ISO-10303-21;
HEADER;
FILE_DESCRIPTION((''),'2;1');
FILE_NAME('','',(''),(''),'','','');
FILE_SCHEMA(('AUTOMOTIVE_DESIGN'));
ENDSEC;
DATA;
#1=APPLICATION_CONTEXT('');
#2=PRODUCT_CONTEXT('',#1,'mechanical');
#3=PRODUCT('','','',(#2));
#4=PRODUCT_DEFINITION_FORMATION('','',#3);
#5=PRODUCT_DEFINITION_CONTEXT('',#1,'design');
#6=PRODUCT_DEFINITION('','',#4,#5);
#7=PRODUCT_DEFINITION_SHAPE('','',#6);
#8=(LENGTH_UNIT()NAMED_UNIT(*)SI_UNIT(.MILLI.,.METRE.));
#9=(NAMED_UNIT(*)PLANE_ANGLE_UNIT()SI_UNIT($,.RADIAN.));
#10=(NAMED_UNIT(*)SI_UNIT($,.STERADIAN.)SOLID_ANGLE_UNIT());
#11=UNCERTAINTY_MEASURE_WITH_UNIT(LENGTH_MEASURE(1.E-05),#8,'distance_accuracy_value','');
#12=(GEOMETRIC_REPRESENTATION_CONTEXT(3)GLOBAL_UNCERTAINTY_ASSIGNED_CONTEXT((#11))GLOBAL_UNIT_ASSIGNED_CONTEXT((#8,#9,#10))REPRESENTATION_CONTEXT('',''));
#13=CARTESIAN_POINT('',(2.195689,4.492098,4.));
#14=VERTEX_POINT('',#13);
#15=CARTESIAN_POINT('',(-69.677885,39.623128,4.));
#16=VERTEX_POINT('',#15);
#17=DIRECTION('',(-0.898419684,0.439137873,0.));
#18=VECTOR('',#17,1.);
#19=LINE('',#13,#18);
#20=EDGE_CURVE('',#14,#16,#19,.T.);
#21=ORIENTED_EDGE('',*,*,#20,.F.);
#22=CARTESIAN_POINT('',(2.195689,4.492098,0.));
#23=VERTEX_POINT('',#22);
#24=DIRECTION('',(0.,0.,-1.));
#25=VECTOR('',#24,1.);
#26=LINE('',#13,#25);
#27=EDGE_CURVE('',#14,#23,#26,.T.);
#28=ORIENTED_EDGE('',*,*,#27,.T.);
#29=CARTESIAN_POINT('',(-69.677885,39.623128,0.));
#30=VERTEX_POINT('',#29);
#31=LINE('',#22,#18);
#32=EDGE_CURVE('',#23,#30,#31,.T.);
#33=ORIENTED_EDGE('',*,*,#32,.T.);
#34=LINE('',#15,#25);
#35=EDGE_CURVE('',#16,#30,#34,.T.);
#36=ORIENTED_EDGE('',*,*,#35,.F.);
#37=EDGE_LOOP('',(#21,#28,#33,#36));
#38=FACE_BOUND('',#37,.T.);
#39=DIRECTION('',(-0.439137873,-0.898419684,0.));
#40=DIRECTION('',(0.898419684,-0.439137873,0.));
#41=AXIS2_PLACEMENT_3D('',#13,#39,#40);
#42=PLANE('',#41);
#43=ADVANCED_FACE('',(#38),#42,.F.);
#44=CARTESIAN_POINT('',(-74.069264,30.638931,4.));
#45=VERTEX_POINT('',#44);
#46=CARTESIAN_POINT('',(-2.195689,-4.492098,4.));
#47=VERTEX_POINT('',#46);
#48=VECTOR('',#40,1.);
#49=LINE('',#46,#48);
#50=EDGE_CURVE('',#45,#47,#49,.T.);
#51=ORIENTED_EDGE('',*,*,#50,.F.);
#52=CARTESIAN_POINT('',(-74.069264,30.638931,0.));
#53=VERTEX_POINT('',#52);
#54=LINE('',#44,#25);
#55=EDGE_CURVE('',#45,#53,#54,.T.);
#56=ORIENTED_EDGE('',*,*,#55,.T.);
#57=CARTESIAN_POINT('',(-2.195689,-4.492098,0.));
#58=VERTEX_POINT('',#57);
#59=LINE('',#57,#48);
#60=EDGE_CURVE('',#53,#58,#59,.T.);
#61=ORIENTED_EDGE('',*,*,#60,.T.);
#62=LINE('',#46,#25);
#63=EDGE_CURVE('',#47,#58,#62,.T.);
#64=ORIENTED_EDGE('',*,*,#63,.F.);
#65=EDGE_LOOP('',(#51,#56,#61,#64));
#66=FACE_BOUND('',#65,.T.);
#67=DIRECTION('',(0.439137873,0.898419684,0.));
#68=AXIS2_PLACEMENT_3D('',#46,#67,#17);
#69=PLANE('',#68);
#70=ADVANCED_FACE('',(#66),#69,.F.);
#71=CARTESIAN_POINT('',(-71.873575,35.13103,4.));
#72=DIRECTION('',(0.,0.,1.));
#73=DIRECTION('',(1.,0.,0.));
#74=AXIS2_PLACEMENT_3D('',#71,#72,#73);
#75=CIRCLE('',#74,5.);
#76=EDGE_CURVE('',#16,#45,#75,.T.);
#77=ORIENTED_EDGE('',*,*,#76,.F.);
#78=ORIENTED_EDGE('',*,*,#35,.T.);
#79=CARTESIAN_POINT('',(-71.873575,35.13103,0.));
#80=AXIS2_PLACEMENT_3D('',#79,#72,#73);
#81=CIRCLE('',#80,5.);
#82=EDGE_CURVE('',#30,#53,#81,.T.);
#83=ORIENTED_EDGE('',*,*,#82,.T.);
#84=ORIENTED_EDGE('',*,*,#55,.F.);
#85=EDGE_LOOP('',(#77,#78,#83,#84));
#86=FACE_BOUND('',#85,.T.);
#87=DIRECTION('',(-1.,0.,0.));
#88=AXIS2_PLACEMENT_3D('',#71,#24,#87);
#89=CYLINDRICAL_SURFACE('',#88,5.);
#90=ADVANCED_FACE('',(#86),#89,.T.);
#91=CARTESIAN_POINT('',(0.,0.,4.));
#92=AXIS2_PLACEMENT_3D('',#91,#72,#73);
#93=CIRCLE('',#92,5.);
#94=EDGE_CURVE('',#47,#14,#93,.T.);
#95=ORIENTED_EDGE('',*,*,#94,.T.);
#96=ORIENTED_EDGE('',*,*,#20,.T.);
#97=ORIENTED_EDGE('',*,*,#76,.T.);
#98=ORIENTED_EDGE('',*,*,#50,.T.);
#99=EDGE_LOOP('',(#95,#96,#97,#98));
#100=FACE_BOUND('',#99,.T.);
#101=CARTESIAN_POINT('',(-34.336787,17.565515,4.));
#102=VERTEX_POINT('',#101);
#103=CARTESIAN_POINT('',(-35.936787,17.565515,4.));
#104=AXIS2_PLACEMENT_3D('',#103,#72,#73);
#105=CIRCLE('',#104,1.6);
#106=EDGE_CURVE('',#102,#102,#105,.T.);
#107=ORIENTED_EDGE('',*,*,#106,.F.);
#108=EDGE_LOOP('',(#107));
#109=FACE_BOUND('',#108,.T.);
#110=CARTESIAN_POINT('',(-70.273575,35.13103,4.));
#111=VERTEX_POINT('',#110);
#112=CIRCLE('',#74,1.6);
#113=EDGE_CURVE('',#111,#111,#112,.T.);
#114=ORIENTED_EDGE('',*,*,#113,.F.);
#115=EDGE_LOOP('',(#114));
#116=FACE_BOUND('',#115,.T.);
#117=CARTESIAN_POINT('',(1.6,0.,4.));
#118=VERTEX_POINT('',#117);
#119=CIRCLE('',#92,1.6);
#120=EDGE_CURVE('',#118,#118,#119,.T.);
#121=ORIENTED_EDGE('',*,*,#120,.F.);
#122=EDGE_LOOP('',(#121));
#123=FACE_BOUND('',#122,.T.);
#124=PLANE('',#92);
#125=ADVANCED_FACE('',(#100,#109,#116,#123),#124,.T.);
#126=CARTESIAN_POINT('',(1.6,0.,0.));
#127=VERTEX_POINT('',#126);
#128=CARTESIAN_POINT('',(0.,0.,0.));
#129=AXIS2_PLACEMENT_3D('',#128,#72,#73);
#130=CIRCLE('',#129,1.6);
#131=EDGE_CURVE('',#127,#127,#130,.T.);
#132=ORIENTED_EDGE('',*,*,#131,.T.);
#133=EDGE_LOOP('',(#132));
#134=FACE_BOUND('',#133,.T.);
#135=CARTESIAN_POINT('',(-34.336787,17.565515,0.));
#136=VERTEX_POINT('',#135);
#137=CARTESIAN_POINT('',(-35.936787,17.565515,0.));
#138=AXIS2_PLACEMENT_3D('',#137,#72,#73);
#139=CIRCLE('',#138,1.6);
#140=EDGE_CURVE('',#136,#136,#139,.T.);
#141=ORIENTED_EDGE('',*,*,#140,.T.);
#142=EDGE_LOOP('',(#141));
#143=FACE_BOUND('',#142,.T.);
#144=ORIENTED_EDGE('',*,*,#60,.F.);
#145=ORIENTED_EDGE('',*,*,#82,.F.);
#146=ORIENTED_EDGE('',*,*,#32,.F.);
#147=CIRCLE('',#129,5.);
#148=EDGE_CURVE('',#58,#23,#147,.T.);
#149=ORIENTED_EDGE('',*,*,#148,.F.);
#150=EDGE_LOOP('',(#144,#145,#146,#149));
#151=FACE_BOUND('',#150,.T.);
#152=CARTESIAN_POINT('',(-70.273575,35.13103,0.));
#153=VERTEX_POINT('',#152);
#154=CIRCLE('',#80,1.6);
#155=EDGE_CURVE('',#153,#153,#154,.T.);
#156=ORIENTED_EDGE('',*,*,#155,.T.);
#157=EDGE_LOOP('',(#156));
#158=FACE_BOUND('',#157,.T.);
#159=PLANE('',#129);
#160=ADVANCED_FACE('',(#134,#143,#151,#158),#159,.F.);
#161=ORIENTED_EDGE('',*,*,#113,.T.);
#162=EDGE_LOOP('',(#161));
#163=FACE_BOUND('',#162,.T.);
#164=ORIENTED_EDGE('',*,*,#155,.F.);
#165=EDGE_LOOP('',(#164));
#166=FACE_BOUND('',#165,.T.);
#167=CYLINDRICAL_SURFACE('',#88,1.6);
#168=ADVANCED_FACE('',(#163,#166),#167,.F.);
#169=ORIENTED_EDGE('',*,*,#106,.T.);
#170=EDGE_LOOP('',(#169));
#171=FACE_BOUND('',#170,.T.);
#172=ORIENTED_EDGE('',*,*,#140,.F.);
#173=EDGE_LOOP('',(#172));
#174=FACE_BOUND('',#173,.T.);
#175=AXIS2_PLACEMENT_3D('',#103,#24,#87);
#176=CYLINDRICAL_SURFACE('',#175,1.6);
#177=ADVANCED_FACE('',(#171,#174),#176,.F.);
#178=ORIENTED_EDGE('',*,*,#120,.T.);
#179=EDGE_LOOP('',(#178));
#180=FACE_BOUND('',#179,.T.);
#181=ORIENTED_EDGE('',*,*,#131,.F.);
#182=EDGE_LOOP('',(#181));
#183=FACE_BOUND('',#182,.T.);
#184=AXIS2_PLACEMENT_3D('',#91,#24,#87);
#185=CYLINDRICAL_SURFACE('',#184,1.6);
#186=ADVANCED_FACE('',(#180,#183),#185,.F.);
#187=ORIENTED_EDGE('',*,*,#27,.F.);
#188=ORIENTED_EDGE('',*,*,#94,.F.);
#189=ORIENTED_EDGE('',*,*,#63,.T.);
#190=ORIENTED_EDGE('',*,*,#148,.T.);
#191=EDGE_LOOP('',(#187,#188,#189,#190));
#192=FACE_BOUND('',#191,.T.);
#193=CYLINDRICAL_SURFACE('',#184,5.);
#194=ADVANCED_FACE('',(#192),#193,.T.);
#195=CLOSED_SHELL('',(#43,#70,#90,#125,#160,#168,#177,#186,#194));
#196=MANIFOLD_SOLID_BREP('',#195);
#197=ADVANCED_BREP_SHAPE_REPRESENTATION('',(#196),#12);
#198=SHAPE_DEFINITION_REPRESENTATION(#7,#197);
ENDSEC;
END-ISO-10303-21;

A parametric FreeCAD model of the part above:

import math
import FreeCAD as App
import Part
import Sketcher

V = App.Vector

doc = App.newDocument("Part")
body = doc.addObject("PartDesign::Body", "Body")

sketch1 = body.newObject("Sketcher::SketchObject", "Sketch")
sketch1.AttachmentSupport = (doc.getObject("XY_Plane"), [""])
sketch1.MapMode = "FlatFace"
sketch1.addGeometry([
    Part.LineSegment(V(-74.1, 30.6, 0), V(-2.2, -4.5, 0)),
    Part.ArcOfCircle(Part.Circle(V(0, 0, 0), V(0, 0, 1), 5), math.radians(-116), math.radians(64)),
    Part.LineSegment(V(2.2, 4.5, 0), V(-69.7, 39.6, 0)),
    Part.ArcOfCircle(Part.Circle(V(-71.9, 35.1, 0), V(0, 0, 1), 5), math.radians(64), math.radians(244)),
    Part.Circle(V(0, 0, 0), V(0, 0, 1), 1.6),
    Part.Circle(V(-35.9, 17.6, 0), V(0, 0, 1), 1.6),
    Part.Circle(V(-71.9, 35.1, 0), V(0, 0, 1), 1.6),
], False)
sketch1.addConstraint([
    Sketcher.Constraint("Tangent", 0, 2, 1, 1),
    Sketcher.Constraint("Tangent", 1, 2, 2, 1),
    Sketcher.Constraint("Tangent", 2, 2, 3, 1),
    Sketcher.Constraint("Tangent", 3, 2, 0, 1),
    Sketcher.Constraint("Coincident", 1, 3, -1, 1),
    Sketcher.Constraint("Coincident", 4, 3, -1, 1),
    Sketcher.Constraint("Coincident", 6, 3, 3, 3),
    Sketcher.Constraint("Equal", 1, 3),
    Sketcher.Constraint("Equal", 4, 5),
    Sketcher.Constraint("Equal", 5, 6),
    Sketcher.Constraint("Radius", 1, 5.0),
    Sketcher.Constraint("Diameter", 4, 3.2),
    Sketcher.Constraint("Distance", 0, 80.0),
    Sketcher.Constraint("DistanceY", 0, 2, -1, 1, 4.492098),
    Sketcher.Constraint("DistanceX", 5, 3, 0, 2, 33.741098),
    Sketcher.Constraint("DistanceY", -1, 1, 5, 3, 17.565515),
])
pad1 = body.newObject("PartDesign::Pad", "Pad")
pad1.Profile = sketch1
pad1.Length = 4

doc.recompute()
